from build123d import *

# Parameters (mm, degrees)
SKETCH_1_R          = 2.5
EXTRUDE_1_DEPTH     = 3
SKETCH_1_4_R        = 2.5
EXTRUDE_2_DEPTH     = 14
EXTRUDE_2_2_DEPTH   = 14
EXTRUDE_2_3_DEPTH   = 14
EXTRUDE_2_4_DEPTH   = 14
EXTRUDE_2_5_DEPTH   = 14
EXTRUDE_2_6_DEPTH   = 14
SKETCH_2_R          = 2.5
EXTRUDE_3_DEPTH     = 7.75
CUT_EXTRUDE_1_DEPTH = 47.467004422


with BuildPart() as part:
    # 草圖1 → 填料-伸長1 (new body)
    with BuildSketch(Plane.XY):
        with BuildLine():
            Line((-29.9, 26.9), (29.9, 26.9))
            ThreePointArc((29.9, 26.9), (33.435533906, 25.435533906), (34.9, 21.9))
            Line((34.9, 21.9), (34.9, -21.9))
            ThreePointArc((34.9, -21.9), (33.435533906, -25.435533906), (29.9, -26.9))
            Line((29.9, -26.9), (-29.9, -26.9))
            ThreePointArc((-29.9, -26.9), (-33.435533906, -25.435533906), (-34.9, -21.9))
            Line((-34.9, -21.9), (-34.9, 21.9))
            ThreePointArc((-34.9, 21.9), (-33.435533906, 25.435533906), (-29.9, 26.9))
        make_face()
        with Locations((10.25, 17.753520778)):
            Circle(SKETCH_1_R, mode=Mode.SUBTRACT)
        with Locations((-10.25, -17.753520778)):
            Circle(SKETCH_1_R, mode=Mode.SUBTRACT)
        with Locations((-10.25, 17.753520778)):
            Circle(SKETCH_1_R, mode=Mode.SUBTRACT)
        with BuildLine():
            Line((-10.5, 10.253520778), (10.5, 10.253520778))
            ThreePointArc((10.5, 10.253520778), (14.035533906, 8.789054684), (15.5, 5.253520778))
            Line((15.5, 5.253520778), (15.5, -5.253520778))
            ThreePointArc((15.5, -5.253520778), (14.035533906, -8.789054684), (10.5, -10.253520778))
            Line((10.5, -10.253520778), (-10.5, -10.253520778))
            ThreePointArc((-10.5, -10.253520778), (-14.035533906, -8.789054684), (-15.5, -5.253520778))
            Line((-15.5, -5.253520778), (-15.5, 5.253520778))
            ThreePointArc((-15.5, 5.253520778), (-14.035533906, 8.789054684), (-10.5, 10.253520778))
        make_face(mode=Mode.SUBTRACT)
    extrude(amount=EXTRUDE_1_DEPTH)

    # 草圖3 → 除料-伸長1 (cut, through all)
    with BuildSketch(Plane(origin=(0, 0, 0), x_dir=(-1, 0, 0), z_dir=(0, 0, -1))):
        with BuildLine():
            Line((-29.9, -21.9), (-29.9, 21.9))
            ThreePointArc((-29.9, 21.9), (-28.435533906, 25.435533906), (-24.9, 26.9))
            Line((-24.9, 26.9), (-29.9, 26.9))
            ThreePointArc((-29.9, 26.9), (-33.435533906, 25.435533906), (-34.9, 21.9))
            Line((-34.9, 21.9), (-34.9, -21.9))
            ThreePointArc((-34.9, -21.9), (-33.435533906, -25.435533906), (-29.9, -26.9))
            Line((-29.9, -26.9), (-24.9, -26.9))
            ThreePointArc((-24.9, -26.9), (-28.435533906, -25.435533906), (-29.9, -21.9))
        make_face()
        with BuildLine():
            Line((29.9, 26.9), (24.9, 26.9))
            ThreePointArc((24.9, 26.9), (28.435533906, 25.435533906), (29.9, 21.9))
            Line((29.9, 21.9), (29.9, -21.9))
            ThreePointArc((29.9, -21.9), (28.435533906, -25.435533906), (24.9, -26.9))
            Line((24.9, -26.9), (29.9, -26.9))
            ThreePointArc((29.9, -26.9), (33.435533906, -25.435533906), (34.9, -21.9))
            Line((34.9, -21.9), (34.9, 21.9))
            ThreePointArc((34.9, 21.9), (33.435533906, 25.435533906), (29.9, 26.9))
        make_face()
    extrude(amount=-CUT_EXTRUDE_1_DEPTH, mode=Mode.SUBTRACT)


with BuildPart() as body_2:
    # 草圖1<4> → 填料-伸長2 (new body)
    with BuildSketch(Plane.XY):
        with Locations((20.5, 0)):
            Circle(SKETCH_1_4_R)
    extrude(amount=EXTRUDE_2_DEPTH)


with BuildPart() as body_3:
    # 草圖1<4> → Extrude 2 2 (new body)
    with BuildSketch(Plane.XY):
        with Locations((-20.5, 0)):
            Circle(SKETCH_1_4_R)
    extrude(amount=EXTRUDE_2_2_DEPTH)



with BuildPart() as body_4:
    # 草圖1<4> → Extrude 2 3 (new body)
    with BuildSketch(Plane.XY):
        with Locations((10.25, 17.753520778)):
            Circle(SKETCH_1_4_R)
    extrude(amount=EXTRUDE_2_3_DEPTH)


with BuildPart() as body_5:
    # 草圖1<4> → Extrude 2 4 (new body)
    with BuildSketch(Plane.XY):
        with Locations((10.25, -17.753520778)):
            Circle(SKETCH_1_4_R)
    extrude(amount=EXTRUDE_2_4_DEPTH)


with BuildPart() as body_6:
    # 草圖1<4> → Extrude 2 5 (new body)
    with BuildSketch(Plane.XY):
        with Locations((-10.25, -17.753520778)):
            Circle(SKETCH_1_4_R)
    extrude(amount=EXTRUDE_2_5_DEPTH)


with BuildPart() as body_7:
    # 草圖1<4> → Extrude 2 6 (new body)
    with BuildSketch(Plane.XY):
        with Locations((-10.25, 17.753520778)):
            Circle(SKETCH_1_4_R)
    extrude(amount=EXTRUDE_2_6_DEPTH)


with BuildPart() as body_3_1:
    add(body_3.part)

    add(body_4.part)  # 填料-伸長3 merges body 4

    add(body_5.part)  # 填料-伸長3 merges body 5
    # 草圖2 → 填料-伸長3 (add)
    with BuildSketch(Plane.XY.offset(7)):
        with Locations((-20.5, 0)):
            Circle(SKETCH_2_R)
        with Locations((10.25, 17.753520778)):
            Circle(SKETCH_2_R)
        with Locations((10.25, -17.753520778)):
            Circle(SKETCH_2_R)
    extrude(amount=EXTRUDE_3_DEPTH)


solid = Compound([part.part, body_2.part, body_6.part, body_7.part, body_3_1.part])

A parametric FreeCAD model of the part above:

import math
import FreeCAD as App
import Part
import Sketcher

V = App.Vector

doc = App.newDocument("Part")
body = doc.addObject("PartDesign::Body", "Body")

# Sketch on XY plane
sketch1 = doc.addObject("Sketcher::SketchObject", "Sketch")
body.addObject(sketch1)
sketch1.AttachmentSupport = (doc.XY_Plane, [""])
sketch1.MapMode = "FlatFace"
sketch1.addGeometry([
    Part.LineSegment(V(29.9, 26.9, 0), V(-29.9, 26.9, 0)),  # 0
    Part.ArcOfCircle(Part.Circle(V(-29.9, 21.9, 0), V(0, 0, 1), 5), math.radians(90), math.radians(180)),  # 1
    Part.LineSegment(V(-34.9, 21.9, 0), V(-34.9, -21.9, 0)),  # 2
    Part.ArcOfCircle(Part.Circle(V(-29.9, -21.9, 0), V(0, 0, 1), 5), math.radians(180), math.radians(270)),  # 3
    Part.LineSegment(V(-29.9, -26.9, 0), V(29.9, -26.9, 0)),  # 4
    Part.ArcOfCircle(Part.Circle(V(29.9, -21.9, 0), V(0, 0, 1), 5), math.radians(-90), math.radians(0)),  # 5
    Part.LineSegment(V(34.9, -21.9, 0), V(34.9, 21.9, 0)),  # 6
    Part.ArcOfCircle(Part.Circle(V(29.9, 21.9, 0), V(0, 0, 1), 5), math.radians(0), math.radians(90)),  # 7
    Part.Circle(V(-10.2, -17.8, 0), V(0, 0, 1), 2.5),  # 8
    Part.Circle(V(10.2, 17.8, 0), V(0, 0, 1), 2.5),  # 9
    Part.LineSegment(V(-10.5, 10.3, 0), V(10.5, 10.3, 0)),  # 10
    Part.ArcOfCircle(Part.Circle(V(10.5, 5.3, 0), V(0, 0, 1), 5), math.radians(0), math.radians(90)),  # 11
    Part.LineSegment(V(15.5, 5.3, 0), V(15.5, -5.3, 0)),  # 12
    Part.ArcOfCircle(Part.Circle(V(10.5, -5.3, 0), V(0, 0, 1), 5), math.radians(-90), math.radians(0)),  # 13
    Part.LineSegment(V(10.5, -10.3, 0), V(-10.5, -10.3, 0)),  # 14
    Part.ArcOfCircle(Part.Circle(V(-10.5, -5.3, 0), V(0, 0, 1), 5), math.radians(180), math.radians(270)),  # 15
    Part.LineSegment(V(-15.5, -5.3, 0), V(-15.5, 5.3, 0)),  # 16
    Part.ArcOfCircle(Part.Circle(V(-10.5, 5.3, 0), V(0, 0, 1), 5), math.radians(90), math.radians(180)),  # 17
    Part.Circle(V(-10.2, 17.8, 0), V(0, 0, 1), 2.5),  # 18
], False)
sketch1.addConstraint([
    Sketcher.Constraint("Tangent", 0, 2, 1, 1),
    Sketcher.Constraint("Tangent", 1, 2, 2, 1),
    Sketcher.Constraint("Tangent", 2, 2, 3, 1),
    Sketcher.Constraint("Tangent", 3, 2, 4, 1),
    Sketcher.Constraint("Tangent", 4, 2, 5, 1),
    Sketcher.Constraint("Tangent", 5, 2, 6, 1),
    Sketcher.Constraint("Tangent", 6, 2, 7, 1),
    Sketcher.Constraint("Tangent", 7, 2, 0, 1),
    Sketcher.Constraint("Tangent", 10, 2, 11, 2),
    Sketcher.Constraint("Tangent", 11, 1, 12, 1),
    Sketcher.Constraint("Tangent", 12, 2, 13, 2),
    Sketcher.Constraint("Tangent", 13, 1, 14, 1),
    Sketcher.Constraint("Tangent", 14, 2, 15, 2),
    Sketcher.Constraint("Tangent", 15, 1, 16, 1),
    Sketcher.Constraint("Tangent", 16, 2, 17, 2),
    Sketcher.Constraint("Tangent", 17, 1, 10, 1),
    Sketcher.Constraint("Horizontal", 0),
    Sketcher.Constraint("Vertical", 2),
    Sketcher.Constraint("Horizontal", 4),
    Sketcher.Constraint("Vertical", 6),
    Sketcher.Constraint("Horizontal", 10),
    Sketcher.Constraint("Vertical", 12),
    Sketcher.Constraint("Horizontal", 14),
    Sketcher.Constraint("Vertical", 16),
    Sketcher.Constraint("Equal", 1, 3),
    Sketcher.Constraint("Equal", 3, 5),
    Sketcher.Constraint("Equal", 5, 7),
    Sketcher.Constraint("Equal", 8, 9),
    Sketcher.Constraint("Equal", 7, 11),
    Sketcher.Constraint("Equal", 11, 13),
    Sketcher.Constraint("Equal", 13, 15),
    Sketcher.Constraint("Equal", 15, 17),
    Sketcher.Constraint("Equal", 9, 18),
    Sketcher.Constraint("Symmetric", 1, 3, 5, 3, -1, 1),
    Sketcher.Constraint("Symmetric", 8, 3, 9, 3, -1, 1),
    Sketcher.Constraint("Symmetric", 11, 3, 15, 3, -1, 1),
    Sketcher.Constraint("Symmetric", 9, 3, 18, 3, -2),
    Sketcher.Constraint("Diameter", 8, 5.0),
    Sketcher.Constraint("Radius", 1, 5.0),
    Sketcher.Constraint("DistanceX", 10, 1, 10, 2, 21.0),
    Sketcher.Constraint("DistanceX", 0, 2, 0, 1, 59.8),
    Sketcher.Constraint("DistanceY", 2, 2, 2, 1, 43.8),
    Sketcher.Constraint("DistanceX", 8, 3, 9, 3, 20.5),
    Sketcher.Constraint("DistanceY", 11, 3, 9, 3, 12.5),
    Sketcher.Constraint("DistanceY", 12, 2, 12, 1, 10.507042),
])
pad1 = doc.addObject("PartDesign::Pad", "Pad")
body.addObject(pad1)
pad1.Profile = sketch1
pad1.Length = 3

# Sketch on XY plane
sketch2 = doc.addObject("Sketcher::SketchObject", "Sketch001")
body.addObject(sketch2)
sketch2.AttachmentSupport = (doc.XY_Plane, [""])
sketch2.MapMode = "FlatFace"
sketch2.addGeometry([
    Part.LineSegment(V(30, -22, 0), V(30, 22, 0)),  # 0
    Part.ArcOfCircle(Part.Circle(V(25, 22, 0), V(0, 0, 1), 5), math.radians(0), math.radians(90)),  # 1
    Part.LineSegment(V(25, 27, 0), V(30, 27, 0)),  # 2
    Part.ArcOfCircle(Part.Circle(V(30, 22, 0), V(0, 0, 1), 5), math.radians(0), math.radians(90)),  # 3
    Part.LineSegment(V(35, 22, 0), V(35, -22, 0)),  # 4
    Part.ArcOfCircle(Part.Circle(V(30, -22, 0), V(0, 0, 1), 5), math.radians(-90), math.radians(0)),  # 5
    Part.LineSegment(V(30, -27, 0), V(25, -27, 0)),  # 6
    Part.ArcOfCircle(Part.Circle(V(25, -22, 0), V(0, 0, 1), 5), math.radians(-90), math.radians(0)),  # 7
    Part.LineSegment(V(-30, 27, 0), V(-25, 27, 0)),  # 8
    Part.ArcOfCircle(Part.Circle(V(-25, 22, 0), V(0, 0, 1), 5), math.radians(90), math.radians(180)),  # 9
    Part.LineSegment(V(-30, 22, 0), V(-30, -22, 0)),  # 10
    Part.ArcOfCircle(Part.Circle(V(-25, -22, 0), V(0, 0, 1), 5), math.radians(180), math.radians(270)),  # 11
    Part.LineSegment(V(-25, -27, 0), V(-30, -27, 0)),  # 12
    Part.ArcOfCircle(Part.Circle(V(-30, -22, 0), V(0, 0, 1), 5), math.radians(180), math.radians(270)),  # 13
    Part.LineSegment(V(-35, -22, 0), V(-35, 22, 0)),  # 14
    Part.ArcOfCircle(Part.Circle(V(-30, 22, 0), V(0, 0, 1), 5), math.radians(90), math.radians(180)),  # 15
], False)
sketch2.addConstraint([
    Sketcher.Constraint("Tangent", 0, 2, 1, 1),
    Sketcher.Constraint("Tangent", 1, 2, 2, 1),
    Sketcher.Constraint("Tangent", 2, 2, 3, 2),
    Sketcher.Constraint("Tangent", 3, 1, 4, 1),
    Sketcher.Constraint("Tangent", 4, 2, 5, 2),
    Sketcher.Constraint("Tangent", 5, 1, 6, 1),
    Sketcher.Constraint("Tangent", 6, 2, 7, 1),
    Sketcher.Constraint("Tangent", 7, 2, 0, 1),
    Sketcher.Constraint("Tangent", 8, 2, 9, 1),
    Sketcher.Constraint("Tangent", 9, 2, 10, 1),
    Sketcher.Constraint("Tangent", 10, 2, 11, 1),
    Sketcher.Constraint("Tangent", 11, 2, 12, 1),
    Sketcher.Constraint("Tangent", 12, 2, 13, 2),
    Sketcher.Constraint("Tangent", 13, 1, 14, 1),
    Sketcher.Constraint("Tangent", 14, 2, 15, 2),
    Sketcher.Constraint("Tangent", 15, 1, 8, 1),
    Sketcher.Constraint("Vertical", 0),
    Sketcher.Constraint("Horizontal", 2),
    Sketcher.Constraint("Vertical", 4),
    Sketcher.Constraint("Horizontal", 6),
    Sketcher.Constraint("Horizontal", 8),
    Sketcher.Constraint("Vertical", 10),
    Sketcher.Constraint("Horizontal", 12),
    Sketcher.Constraint("Vertical", 14),
    Sketcher.Constraint("Coincident", 0, 2, 3, 3),
    Sketcher.Constraint("Coincident", 7, 2, 5, 3),
    Sketcher.Constraint("Coincident", 9, 2, 15, 3),
    Sketcher.Constraint("Coincident", 10, 2, 13, 3),
    Sketcher.Constraint("Equal", 7, 9),
    Sketcher.Constraint("Symmetric", 7, 3, 9, 3, -1, 1),
    Sketcher.Constraint("Horizontal", 3, 3, 9, 3),
    Sketcher.Constraint("Horizontal", 7, 3, 11, 3),
    Sketcher.Constraint("Radius", 1, 5.0),
    Sketcher.Constraint("DistanceY", 0, 1, 0, 2, 43.8),
    Sketcher.Constraint("DistanceX", -1, 1, 1, 3, 24.9),
])
pocket1 = doc.addObject("PartDesign::Pocket", "Pocket")
body.addObject(pocket1)
pocket1.Profile = sketch2
pocket1.Type = "ThroughAll"
pocket1.Reversed = True
body2 = doc.addObject("PartDesign::Body", "Body001")

# Sketch on XY plane
sketch3 = doc.addObject("Sketcher::SketchObject", "Sketch002")
body2.addObject(sketch3)
sketch3.AttachmentSupport = (doc.getObject("XY_Plane001"), [""])
sketch3.MapMode = "FlatFace"
sketch3.addGeometry(Part.Circle(V(20.5, 0, 0), V(0, 0, 1), 2.5), False)
sketch3.addConstraint([
    Sketcher.Constraint("PointOnObject", 0, 3, -1),
    Sketcher.Constraint("Diameter", 0, 5.0),
    Sketcher.Constraint("DistanceX", -1, 1, 0, 3, 20.5),
])
pad2 = doc.addObject("PartDesign::Pad", "Pad001")
body2.addObject(pad2)
pad2.Profile = sketch3
pad2.Length = 14
body3 = doc.addObject("PartDesign::Body", "Body002")

# Sketch on XY plane
sketch4 = doc.addObject("Sketcher::SketchObject", "Sketch003")
body3.addObject(sketch4)
sketch4.AttachmentSupport = (doc.getObject("XY_Plane002"), [""])
sketch4.MapMode = "FlatFace"
sketch4.addGeometry(Part.Circle(V(-20.5, 0, 0), V(0, 0, 1), 2.5), False)
sketch4.addConstraint([
    Sketcher.Constraint("PointOnObject", 0, 3, -1),
    Sketcher.Constraint("Diameter", 0, 5.0),
    Sketcher.Constraint("DistanceX", 0, 3, -1, 1, 20.5),
])
pad3 = doc.addObject("PartDesign::Pad", "Pad002")
body3.addObject(pad3)
pad3.Profile = sketch4
pad3.Length = 14
body4 = doc.addObject("PartDesign::Body", "Body003")

# Sketch on XY plane
sketch5 = doc.addObject("Sketcher::SketchObject", "Sketch004")
body4.addObject(sketch5)
sketch5.AttachmentSupport = (doc.getObject("XY_Plane003"), [""])
sketch5.MapMode = "FlatFace"
sketch5.addGeometry(Part.Circle(V(10.2, 17.8, 0), V(0, 0, 1), 2.5), False)
sketch5.addConstraint([
    Sketcher.Constraint("Diameter", 0, 5.0),
    Sketcher.Constraint("DistanceX", -1, 1, 0, 3, 10.25),
    Sketcher.Constraint("DistanceY", -1, 1, 0, 3, 17.753521),
])
pad4 = doc.addObject("PartDesign::Pad", "Pad003")
body4.addObject(pad4)
pad4.Profile = sketch5
pad4.Length = 14
body5 = doc.addObject("PartDesign::Body", "Body004")

# Sketch on XY plane
sketch6 = doc.addObject("Sketcher::SketchObject", "Sketch005")
body5.addObject(sketch6)
sketch6.AttachmentSupport = (doc.getObject("XY_Plane004"), [""])
sketch6.MapMode = "FlatFace"
sketch6.addGeometry(Part.Circle(V(10.2, -17.8, 0), V(0, 0, 1), 2.5), False)
sketch6.addConstraint([
    Sketcher.Constraint("Diameter", 0, 5.0),
    Sketcher.Constraint("DistanceX", -1, 1, 0, 3, 10.25),
    Sketcher.Constraint("DistanceY", 0, 3, -1, 1, 17.753521),
])
pad5 = doc.addObject("PartDesign::Pad", "Pad004")
body5.addObject(pad5)
pad5.Profile = sketch6
pad5.Length = 14
body6 = doc.addObject("PartDesign::Body", "Body005")

# Sketch on XY plane
sketch7 = doc.addObject("Sketcher::SketchObject", "Sketch006")
body6.addObject(sketch7)
sketch7.AttachmentSupport = (doc.getObject("XY_Plane005"), [""])
sketch7.MapMode = "FlatFace"
sketch7.addGeometry(Part.Circle(V(-10.2, -17.8, 0), V(0, 0, 1), 2.5), False)
sketch7.addConstraint([
    Sketcher.Constraint("Diameter", 0, 5.0),
    Sketcher.Constraint("DistanceX", 0, 3, -1, 1, 10.25),
    Sketcher.Constraint("DistanceY", 0, 3, -1, 1, 17.753521),
])
pad6 = doc.addObject("PartDesign::Pad", "Pad005")
body6.addObject(pad6)
pad6.Profile = sketch7
pad6.Length = 14
body7 = doc.addObject("PartDesign::Body", "Body006")

# Sketch on XY plane
sketch8 = doc.addObject("Sketcher::SketchObject", "Sketch007")
body7.addObject(sketch8)
sketch8.AttachmentSupport = (doc.getObject("XY_Plane006"), [""])
sketch8.MapMode = "FlatFace"
sketch8.addGeometry(Part.Circle(V(-10.2, 17.8, 0), V(0, 0, 1), 2.5), False)
sketch8.addConstraint([
    Sketcher.Constraint("Diameter", 0, 5.0),
    Sketcher.Constraint("DistanceX", 0, 3, -1, 1, 10.25),
    Sketcher.Constraint("DistanceY", -1, 1, 0, 3, 17.753521),
])
pad7 = doc.addObject("PartDesign::Pad", "Pad006")
body7.addObject(pad7)
pad7.Profile = sketch8
pad7.Length = 14
body3.AllowCompound = True
doc.recompute()

boolean = doc.addObject("PartDesign::Boolean", "Boolean")
body3.addObject(boolean)
boolean.Type = "Fuse"
boolean.addObjects([body4])
doc.recompute()

boolean2 = doc.addObject("PartDesign::Boolean", "Boolean001")
body3.addObject(boolean2)
boolean2.Type = "Fuse"
boolean2.addObjects([body5])

# Sketch on XY plane
sketch9 = doc.addObject("Sketcher::SketchObject", "Sketch008")
body3.addObject(sketch9)
sketch9.AttachmentSupport = (doc.getObject("XY_Plane002"), [""])
sketch9.MapMode = "FlatFace"
sketch9.AttachmentOffset = App.Placement(V(0, 0, 7), App.Rotation())
sketch9.addGeometry([
    Part.Circle(V(-20.5, 0, 0), V(0, 0, 1), 2.5),
    Part.Circle(V(10.2, 17.8, 0), V(0, 0, 1), 2.5),
    Part.Circle(V(10.2, -17.8, 0), V(0, 0, 1), 2.5),
], False)
sketch9.addConstraint([
    Sketcher.Constraint("Equal", 0, 1),
    Sketcher.Constraint("Equal", 1, 2),
    Sketcher.Constraint("Symmetric", 1, 3, 2, 3, -1),
    Sketcher.Constraint("PointOnObject", 0, 3, -1),
    Sketcher.Constraint("Diameter", 0, 5.0),
    Sketcher.Constraint("DistanceX", 0, 3, -1, 1, 20.5),
    Sketcher.Constraint("DistanceX", -1, 1, 1, 3, 10.25),
    Sketcher.Constraint("DistanceY", -1, 1, 1, 3, 17.753521),
])
pad8 = doc.addObject("PartDesign::Pad", "Pad007")
body3.addObject(pad8)
pad8.Profile = sketch9
pad8.Length = 7.75

doc.recompute()
